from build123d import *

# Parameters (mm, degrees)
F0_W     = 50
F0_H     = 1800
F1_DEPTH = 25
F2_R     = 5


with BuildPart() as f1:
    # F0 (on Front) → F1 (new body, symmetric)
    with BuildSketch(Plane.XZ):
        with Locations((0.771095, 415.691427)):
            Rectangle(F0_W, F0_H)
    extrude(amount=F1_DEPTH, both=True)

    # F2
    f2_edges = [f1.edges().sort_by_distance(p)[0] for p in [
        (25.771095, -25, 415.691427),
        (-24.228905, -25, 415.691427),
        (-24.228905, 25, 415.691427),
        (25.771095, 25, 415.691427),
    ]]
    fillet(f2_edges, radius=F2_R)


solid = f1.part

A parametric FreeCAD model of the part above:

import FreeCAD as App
import Part
import Sketcher

V = App.Vector
Q = App.Units.Quantity


def edges_at(feature, points):
    """Names of the edges that pass closest to the given points."""
    edges = feature.Shape.Edges
    near = lambda p: min(range(len(edges)), key=lambda i: edges[i].distToShape(Part.Vertex(*p))[0])
    return sorted({f"Edge{near(p) + 1}" for p in points})


def add_polygon(sketch, points):
    """Adds a closed chain of lines whose ends are joined by coincident constraints."""
    first, n = sketch.GeometryCount, len(points)
    for a, b in zip(points, points[1:] + points[:1]):
        sketch.addGeometry(Part.LineSegment(App.Vector(*a, 0), App.Vector(*b, 0)), False)
    for i in range(n):
        sketch.addConstraint(Sketcher.Constraint("Coincident", first + i, 2, first + (i + 1) % n, 1))

doc = App.newDocument("Part")
body = doc.addObject("PartDesign::Body", "Body")

# Sketch on XZ plane
sketch1 = body.newObject("Sketcher::SketchObject", "Sketch")
sketch1.AttachmentSupport = (doc.getObject("XZ_Plane"), [""])
sketch1.MapMode = "FlatFace"
add_polygon(sketch1, [(-24.228905, 1315.691427), (-24.228905, -484.308573), (25.771095, -484.308573), (25.771095, 1315.691427)])  # lines 0-3
sketch1.addConstraint([
    Sketcher.Constraint("Vertical", 0),
    Sketcher.Constraint("Horizontal", 1),
    Sketcher.Constraint("Vertical", 2),
    Sketcher.Constraint("Horizontal", 3),
    Sketcher.Constraint("DistanceX", 1, 1, 1, 2, Q("50 mm")),
    Sketcher.Constraint("DistanceY", 0, 2, 0, 1, Q("1800 mm")),
    Sketcher.Constraint("DistanceX", 0, 2, -1, 1, Q("24.228905 mm")),
    Sketcher.Constraint("DistanceY", 0, 2, -1, 1, Q("484.308573 mm")),
])
pad1 = body.newObject("PartDesign::Pad", "Pad")
pad1.Profile = sketch1
pad1.Length = 50
pad1.Midplane = True
doc.recompute()

fillet = body.newObject("PartDesign::Fillet", "Fillet")
fillet.Base = (pad1, edges_at(pad1, [
    (25.771, -25, 415.691),
    (-24.229, -25, 415.691),
    (-24.229, 25, 415.691),
    (25.771, 25, 415.691),
]))
fillet.Radius = 5

doc.recompute()
